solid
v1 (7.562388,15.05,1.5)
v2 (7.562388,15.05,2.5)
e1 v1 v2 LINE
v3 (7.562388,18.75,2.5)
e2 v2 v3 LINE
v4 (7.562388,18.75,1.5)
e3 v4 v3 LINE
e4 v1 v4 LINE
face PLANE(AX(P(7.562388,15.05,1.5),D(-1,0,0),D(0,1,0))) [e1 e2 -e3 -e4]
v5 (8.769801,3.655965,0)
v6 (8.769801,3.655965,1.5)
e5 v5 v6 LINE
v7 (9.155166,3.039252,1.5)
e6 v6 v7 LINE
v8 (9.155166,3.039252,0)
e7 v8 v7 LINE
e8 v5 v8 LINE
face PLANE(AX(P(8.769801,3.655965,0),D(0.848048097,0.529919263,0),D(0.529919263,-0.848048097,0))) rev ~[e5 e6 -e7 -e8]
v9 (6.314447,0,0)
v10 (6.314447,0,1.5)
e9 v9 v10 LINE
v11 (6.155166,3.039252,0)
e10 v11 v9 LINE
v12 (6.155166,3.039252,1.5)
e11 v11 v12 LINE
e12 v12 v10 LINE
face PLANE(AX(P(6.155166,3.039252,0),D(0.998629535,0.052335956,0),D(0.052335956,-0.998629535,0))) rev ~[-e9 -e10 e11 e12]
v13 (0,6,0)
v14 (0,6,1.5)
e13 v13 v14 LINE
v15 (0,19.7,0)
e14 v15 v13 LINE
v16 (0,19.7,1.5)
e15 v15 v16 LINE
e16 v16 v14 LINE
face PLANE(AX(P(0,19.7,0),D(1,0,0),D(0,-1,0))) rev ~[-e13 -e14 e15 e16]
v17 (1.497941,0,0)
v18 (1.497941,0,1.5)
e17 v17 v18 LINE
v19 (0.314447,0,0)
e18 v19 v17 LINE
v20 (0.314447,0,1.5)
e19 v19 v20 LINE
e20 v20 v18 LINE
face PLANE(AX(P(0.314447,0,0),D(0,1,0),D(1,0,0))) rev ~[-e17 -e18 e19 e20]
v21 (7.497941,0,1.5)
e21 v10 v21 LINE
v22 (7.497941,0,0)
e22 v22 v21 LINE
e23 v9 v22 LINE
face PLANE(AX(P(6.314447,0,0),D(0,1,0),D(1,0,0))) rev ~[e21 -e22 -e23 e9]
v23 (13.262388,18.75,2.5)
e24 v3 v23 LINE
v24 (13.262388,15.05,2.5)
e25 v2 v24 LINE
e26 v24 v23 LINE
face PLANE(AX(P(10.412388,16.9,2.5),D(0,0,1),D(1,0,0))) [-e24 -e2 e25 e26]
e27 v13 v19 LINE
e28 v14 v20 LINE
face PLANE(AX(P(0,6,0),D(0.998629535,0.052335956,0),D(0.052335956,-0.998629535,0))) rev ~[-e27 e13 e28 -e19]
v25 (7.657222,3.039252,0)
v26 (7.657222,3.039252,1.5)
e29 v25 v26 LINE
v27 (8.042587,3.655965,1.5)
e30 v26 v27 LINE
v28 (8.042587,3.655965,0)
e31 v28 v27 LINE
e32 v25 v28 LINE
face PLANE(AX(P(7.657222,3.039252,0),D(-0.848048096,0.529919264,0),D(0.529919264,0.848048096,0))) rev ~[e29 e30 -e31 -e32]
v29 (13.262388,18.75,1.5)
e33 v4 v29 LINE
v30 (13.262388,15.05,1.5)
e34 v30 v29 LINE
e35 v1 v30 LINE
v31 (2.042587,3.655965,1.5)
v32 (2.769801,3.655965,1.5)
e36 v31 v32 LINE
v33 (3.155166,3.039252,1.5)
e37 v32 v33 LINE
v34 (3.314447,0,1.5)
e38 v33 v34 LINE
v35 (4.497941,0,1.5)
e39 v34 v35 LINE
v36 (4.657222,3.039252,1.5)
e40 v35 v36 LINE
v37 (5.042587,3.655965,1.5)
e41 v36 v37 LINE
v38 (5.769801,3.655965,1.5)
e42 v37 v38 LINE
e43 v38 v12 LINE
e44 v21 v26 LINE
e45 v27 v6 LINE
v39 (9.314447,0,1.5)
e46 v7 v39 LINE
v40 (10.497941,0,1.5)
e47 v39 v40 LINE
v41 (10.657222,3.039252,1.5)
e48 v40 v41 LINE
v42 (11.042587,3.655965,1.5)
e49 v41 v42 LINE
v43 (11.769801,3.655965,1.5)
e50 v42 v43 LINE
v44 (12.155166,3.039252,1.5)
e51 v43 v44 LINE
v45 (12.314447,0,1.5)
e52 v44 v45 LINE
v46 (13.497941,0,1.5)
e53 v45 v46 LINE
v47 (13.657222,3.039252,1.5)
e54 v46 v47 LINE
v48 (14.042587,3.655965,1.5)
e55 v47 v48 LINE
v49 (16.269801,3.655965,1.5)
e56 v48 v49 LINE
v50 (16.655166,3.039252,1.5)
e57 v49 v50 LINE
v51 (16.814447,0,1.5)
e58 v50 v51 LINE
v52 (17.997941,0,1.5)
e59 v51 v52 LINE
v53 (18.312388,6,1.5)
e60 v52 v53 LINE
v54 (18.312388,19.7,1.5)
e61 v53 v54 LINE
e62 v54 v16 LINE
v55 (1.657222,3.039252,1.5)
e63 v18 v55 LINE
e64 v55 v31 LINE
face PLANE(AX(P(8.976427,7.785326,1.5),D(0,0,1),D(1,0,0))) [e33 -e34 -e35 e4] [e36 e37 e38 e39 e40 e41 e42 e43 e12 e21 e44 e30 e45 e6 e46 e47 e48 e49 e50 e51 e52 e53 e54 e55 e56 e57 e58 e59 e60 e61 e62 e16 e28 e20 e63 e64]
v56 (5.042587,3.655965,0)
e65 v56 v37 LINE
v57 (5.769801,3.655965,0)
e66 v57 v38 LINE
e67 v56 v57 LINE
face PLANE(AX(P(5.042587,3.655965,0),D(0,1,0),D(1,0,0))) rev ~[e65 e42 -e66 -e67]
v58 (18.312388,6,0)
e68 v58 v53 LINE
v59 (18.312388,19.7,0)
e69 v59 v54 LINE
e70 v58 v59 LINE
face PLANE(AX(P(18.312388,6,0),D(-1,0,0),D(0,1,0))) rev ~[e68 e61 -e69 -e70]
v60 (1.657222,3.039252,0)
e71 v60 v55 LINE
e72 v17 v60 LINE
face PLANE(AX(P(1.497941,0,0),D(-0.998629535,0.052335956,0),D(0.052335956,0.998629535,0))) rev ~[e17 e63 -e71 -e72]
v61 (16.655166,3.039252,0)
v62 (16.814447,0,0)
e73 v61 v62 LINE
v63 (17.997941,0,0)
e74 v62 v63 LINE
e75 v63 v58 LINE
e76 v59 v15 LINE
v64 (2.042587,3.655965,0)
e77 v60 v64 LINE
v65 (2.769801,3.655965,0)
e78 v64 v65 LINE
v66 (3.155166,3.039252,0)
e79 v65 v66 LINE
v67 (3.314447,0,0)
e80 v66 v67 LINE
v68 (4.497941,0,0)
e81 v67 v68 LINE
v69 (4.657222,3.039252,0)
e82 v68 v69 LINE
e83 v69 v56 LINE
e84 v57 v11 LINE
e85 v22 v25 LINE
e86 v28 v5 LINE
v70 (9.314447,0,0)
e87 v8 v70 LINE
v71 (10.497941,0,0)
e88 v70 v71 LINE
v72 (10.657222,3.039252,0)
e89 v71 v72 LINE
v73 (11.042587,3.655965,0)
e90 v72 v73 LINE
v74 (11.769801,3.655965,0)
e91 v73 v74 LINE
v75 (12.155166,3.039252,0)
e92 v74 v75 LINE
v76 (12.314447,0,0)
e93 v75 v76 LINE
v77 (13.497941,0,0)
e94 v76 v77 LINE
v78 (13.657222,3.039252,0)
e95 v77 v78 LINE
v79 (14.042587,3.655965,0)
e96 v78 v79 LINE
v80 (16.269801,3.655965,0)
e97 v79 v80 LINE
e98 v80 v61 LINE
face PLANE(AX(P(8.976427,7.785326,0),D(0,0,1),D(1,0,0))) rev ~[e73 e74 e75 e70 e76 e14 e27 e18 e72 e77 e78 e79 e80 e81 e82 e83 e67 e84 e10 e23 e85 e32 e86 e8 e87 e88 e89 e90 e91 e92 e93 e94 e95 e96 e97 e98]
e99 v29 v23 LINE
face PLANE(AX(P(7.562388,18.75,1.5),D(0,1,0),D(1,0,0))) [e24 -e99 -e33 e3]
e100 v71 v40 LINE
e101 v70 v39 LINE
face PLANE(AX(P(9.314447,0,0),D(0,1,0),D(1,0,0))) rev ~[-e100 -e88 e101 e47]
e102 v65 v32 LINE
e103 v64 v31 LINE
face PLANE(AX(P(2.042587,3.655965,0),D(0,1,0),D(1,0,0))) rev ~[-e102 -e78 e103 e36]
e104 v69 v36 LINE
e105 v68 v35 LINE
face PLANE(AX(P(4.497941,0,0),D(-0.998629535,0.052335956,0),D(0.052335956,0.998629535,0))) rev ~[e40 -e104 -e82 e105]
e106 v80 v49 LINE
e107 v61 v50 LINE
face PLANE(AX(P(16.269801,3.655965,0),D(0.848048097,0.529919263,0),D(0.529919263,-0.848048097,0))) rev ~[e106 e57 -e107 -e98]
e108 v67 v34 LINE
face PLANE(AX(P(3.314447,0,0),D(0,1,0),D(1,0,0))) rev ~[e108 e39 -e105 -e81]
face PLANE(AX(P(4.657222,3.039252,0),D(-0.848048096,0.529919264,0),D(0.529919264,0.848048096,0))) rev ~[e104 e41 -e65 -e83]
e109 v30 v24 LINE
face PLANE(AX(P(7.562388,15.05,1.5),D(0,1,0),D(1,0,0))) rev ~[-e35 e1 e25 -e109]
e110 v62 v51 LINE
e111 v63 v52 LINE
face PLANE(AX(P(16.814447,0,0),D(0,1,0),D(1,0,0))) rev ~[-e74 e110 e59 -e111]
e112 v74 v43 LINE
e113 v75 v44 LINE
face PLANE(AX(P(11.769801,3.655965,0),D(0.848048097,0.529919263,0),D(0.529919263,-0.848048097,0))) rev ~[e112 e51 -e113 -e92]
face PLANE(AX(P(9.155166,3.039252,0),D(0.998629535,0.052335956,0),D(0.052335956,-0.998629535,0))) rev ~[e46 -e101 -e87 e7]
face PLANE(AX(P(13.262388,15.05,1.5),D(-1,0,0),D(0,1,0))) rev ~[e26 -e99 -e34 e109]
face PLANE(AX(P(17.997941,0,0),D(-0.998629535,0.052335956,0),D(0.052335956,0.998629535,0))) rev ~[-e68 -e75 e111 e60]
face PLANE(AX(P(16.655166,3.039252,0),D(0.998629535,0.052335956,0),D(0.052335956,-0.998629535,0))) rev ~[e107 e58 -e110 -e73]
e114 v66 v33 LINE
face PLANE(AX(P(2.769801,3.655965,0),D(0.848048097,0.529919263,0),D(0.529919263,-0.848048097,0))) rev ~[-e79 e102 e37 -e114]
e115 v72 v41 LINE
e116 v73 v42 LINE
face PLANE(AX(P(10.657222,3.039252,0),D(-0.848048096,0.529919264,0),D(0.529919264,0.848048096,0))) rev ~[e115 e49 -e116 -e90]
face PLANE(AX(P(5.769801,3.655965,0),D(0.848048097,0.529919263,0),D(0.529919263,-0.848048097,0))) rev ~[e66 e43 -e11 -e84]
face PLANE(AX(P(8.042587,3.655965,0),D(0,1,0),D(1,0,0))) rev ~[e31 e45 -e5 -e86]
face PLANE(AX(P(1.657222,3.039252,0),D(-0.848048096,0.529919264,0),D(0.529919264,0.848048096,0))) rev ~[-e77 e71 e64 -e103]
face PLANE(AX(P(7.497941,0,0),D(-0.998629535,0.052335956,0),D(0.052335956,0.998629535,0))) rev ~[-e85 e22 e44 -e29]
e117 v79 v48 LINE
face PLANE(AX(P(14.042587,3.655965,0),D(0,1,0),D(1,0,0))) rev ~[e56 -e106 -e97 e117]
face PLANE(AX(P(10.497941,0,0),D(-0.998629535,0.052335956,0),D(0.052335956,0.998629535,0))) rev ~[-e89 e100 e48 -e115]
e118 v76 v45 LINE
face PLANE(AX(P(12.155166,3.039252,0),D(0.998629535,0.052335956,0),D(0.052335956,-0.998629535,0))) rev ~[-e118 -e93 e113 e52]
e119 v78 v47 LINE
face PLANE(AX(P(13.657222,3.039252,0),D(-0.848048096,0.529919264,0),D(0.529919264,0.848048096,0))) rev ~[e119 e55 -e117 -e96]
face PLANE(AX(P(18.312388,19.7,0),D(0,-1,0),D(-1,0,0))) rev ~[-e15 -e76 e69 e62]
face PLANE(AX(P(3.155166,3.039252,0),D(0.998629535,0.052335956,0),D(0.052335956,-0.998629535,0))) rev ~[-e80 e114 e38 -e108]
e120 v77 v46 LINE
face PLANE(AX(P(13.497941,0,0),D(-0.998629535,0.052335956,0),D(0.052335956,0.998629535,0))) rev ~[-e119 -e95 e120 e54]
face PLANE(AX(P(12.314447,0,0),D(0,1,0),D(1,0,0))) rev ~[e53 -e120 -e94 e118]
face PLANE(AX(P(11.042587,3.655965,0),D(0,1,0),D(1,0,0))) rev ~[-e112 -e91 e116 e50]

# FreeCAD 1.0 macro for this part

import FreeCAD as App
import Part
import Sketcher
Q = App.Units.Quantity

doc = App.newDocument("Part")
params = doc.addObject("Spreadsheet::Sheet", "Params")
for row, (alias, value) in enumerate([
    ("sketch1_height", "13.7 mm"),
    ("pad1_length", "1.5 mm"),
    ("sketch2_width", "5.7 mm"),
    ("sketch2_height", "3.7 mm"),
    ("pad2_length", "1 mm"),
], start=1):
    params.set(f"A{row}", alias)
    params.set(f"B{row}", "=" + value)
    params.setAlias(f"B{row}", alias)

body = doc.addObject("PartDesign::Body", "Body")

sketch1 = body.newObject("Sketcher::SketchObject", "Sketch")
sketch1.AttachmentSupport = (doc.getObject("XY_Plane"), [""])
sketch1.MapMode = "FlatFace"
sketch1.addGeometry([
    Part.LineSegment(App.Vector(0, 6, 0), App.Vector(0.314447, 0, 0)),
    Part.LineSegment(App.Vector(0.314447, 0, 0), App.Vector(1.497941, 0, 0)),
    Part.LineSegment(App.Vector(1.497941, 0, 0), App.Vector(1.657222, 3.039252, 0)),
    Part.LineSegment(App.Vector(1.657222, 3.039252, 0), App.Vector(2.042587, 3.655965, 0)),
    Part.LineSegment(App.Vector(2.042587, 3.655965, 0), App.Vector(2.769801, 3.655965, 0)),
    Part.LineSegment(App.Vector(2.769801, 3.655965, 0), App.Vector(3.155166, 3.039252, 0)),
    Part.LineSegment(App.Vector(3.155166, 3.039252, 0), App.Vector(3.314447, 0, 0)),
    Part.LineSegment(App.Vector(3.314447, 0, 0), App.Vector(4.497941, 0, 0)),
    Part.LineSegment(App.Vector(4.497941, 0, 0), App.Vector(4.657222, 3.039252, 0)),
    Part.LineSegment(App.Vector(4.657222, 3.039252, 0), App.Vector(5.042587, 3.655965, 0)),
    Part.LineSegment(App.Vector(5.042587, 3.655965, 0), App.Vector(5.769801, 3.655965, 0)),
    Part.LineSegment(App.Vector(5.769801, 3.655965, 0), App.Vector(6.155166, 3.039252, 0)),
    Part.LineSegment(App.Vector(6.155166, 3.039252, 0), App.Vector(6.314447, 0, 0)),
    Part.LineSegment(App.Vector(6.314447, 0, 0), App.Vector(7.497941, 0, 0)),
    Part.LineSegment(App.Vector(7.497941, 0, 0), App.Vector(7.657222, 3.039252, 0)),
    Part.LineSegment(App.Vector(7.657222, 3.039252, 0), App.Vector(8.042587, 3.655965, 0)),
    Part.LineSegment(App.Vector(8.042587, 3.655965, 0), App.Vector(8.769801, 3.655965, 0)),
    Part.LineSegment(App.Vector(8.769801, 3.655965, 0), App.Vector(9.155166, 3.039252, 0)),
    Part.LineSegment(App.Vector(9.155166, 3.039252, 0), App.Vector(9.314447, 0, 0)),
    Part.LineSegment(App.Vector(9.314447, 0, 0), App.Vector(10.497941, 0, 0)),
    Part.LineSegment(App.Vector(10.497941, 0, 0), App.Vector(10.657222, 3.039252, 0)),
    Part.LineSegment(App.Vector(10.657222, 3.039252, 0), App.Vector(11.042587, 3.655965, 0)),
    Part.LineSegment(App.Vector(11.042587, 3.655965, 0), App.Vector(11.769801, 3.655965, 0)),
    Part.LineSegment(App.Vector(11.769801, 3.655965, 0), App.Vector(12.155166, 3.039252, 0)),
    Part.LineSegment(App.Vector(12.155166, 3.039252, 0), App.Vector(12.314447, 0, 0)),
    Part.LineSegment(App.Vector(12.314447, 0, 0), App.Vector(13.497941, 0, 0)),
    Part.LineSegment(App.Vector(13.497941, 0, 0), App.Vector(13.657222, 3.039252, 0)),
    Part.LineSegment(App.Vector(13.657222, 3.039252, 0), App.Vector(14.042587, 3.655965, 0)),
    Part.LineSegment(App.Vector(14.042587, 3.655965, 0), App.Vector(16.269801, 3.655965, 0)),
    Part.LineSegment(App.Vector(16.269801, 3.655965, 0), App.Vector(16.655166, 3.039252, 0)),
    Part.LineSegment(App.Vector(16.655166, 3.039252, 0), App.Vector(16.814447, 0, 0)),
    Part.LineSegment(App.Vector(16.814447, 0, 0), App.Vector(17.997941, 0, 0)),
    Part.LineSegment(App.Vector(17.997941, 0, 0), App.Vector(18.312388, 6, 0)),
    Part.LineSegment(App.Vector(18.312388, 6, 0), App.Vector(18.312388, 19.7, 0)),
    Part.LineSegment(App.Vector(18.312388, 19.7, 0), App.Vector(0, 19.7, 0)),
    Part.LineSegment(App.Vector(0, 19.7, 0), App.Vector(0, 6, 0)),
], False)
sketch1.addConstraint([
    Sketcher.Constraint("Coincident", 0, 2, 1, 1),
    Sketcher.Constraint("Coincident", 1, 2, 2, 1),
    Sketcher.Constraint("Coincident", 2, 2, 3, 1),
    Sketcher.Constraint("Coincident", 3, 2, 4, 1),
    Sketcher.Constraint("Coincident", 4, 2, 5, 1),
    Sketcher.Constraint("Coincident", 5, 2, 6, 1),
    Sketcher.Constraint("Coincident", 6, 2, 7, 1),
    Sketcher.Constraint("Coincident", 7, 2, 8, 1),
    Sketcher.Constraint("Coincident", 8, 2, 9, 1),
    Sketcher.Constraint("Coincident", 9, 2, 10, 1),
    Sketcher.Constraint("Coincident", 10, 2, 11, 1),
    Sketcher.Constraint("Coincident", 11, 2, 12, 1),
    Sketcher.Constraint("Coincident", 12, 2, 13, 1),
    Sketcher.Constraint("Coincident", 13, 2, 14, 1),
    Sketcher.Constraint("Coincident", 14, 2, 15, 1),
    Sketcher.Constraint("Coincident", 15, 2, 16, 1),
    Sketcher.Constraint("Coincident", 16, 2, 17, 1),
    Sketcher.Constraint("Coincident", 17, 2, 18, 1),
    Sketcher.Constraint("Coincident", 18, 2, 19, 1),
    Sketcher.Constraint("Coincident", 19, 2, 20, 1),
    Sketcher.Constraint("Coincident", 20, 2, 21, 1),
    Sketcher.Constraint("Coincident", 21, 2, 22, 1),
    Sketcher.Constraint("Coincident", 22, 2, 23, 1),
    Sketcher.Constraint("Coincident", 23, 2, 24, 1),
    Sketcher.Constraint("Coincident", 24, 2, 25, 1),
    Sketcher.Constraint("Coincident", 25, 2, 26, 1),
    Sketcher.Constraint("Coincident", 26, 2, 27, 1),
    Sketcher.Constraint("Coincident", 27, 2, 28, 1),
    Sketcher.Constraint("Coincident", 28, 2, 29, 1),
    Sketcher.Constraint("Coincident", 29, 2, 30, 1),
    Sketcher.Constraint("Coincident", 30, 2, 31, 1),
    Sketcher.Constraint("Coincident", 31, 2, 32, 1),
    Sketcher.Constraint("Coincident", 32, 2, 33, 1),
    Sketcher.Constraint("Coincident", 33, 2, 34, 1),
    Sketcher.Constraint("Coincident", 34, 2, 35, 1),
    Sketcher.Constraint("Coincident", 35, 2, 0, 1),
    Sketcher.Constraint("Horizontal", 1),
    Sketcher.Constraint("Horizontal", 4),
    Sketcher.Constraint("Horizontal", 7),
    Sketcher.Constraint("Horizontal", 10),
    Sketcher.Constraint("Horizontal", 13),
    Sketcher.Constraint("Horizontal", 16),
    Sketcher.Constraint("Horizontal", 19),
    Sketcher.Constraint("Horizontal", 22),
    Sketcher.Constraint("Horizontal", 25),
    Sketcher.Constraint("Horizontal", 28),
    Sketcher.Constraint("Horizontal", 31),
    Sketcher.Constraint("Vertical", 33),
    Sketcher.Constraint("Horizontal", 34),
    Sketcher.Constraint("Vertical", 35),
    Sketcher.Constraint("PointOnObject", 0, 2, -1),
    Sketcher.Constraint("PointOnObject", 6, 2, -1),
    Sketcher.Constraint("PointOnObject", 12, 2, -1),
    Sketcher.Constraint("PointOnObject", 18, 2, -1),
    Sketcher.Constraint("PointOnObject", 24, 2, -1),
    Sketcher.Constraint("PointOnObject", 30, 2, -1),
    Sketcher.Constraint("PointOnObject", 34, 2, -2),
    Sketcher.Constraint("Parallel", 0, 6),
    Sketcher.Constraint("Parallel", 2, 8),
    Sketcher.Constraint("Parallel", 3, 9),
    Sketcher.Constraint("Parallel", 5, 11),
    Sketcher.Constraint("Parallel", 6, 12),
    Sketcher.Constraint("Parallel", 8, 14),
    Sketcher.Constraint("Parallel", 9, 15),
    Sketcher.Constraint("Parallel", 11, 17),
    Sketcher.Constraint("Parallel", 12, 18),
    Sketcher.Constraint("Parallel", 14, 20),
    Sketcher.Constraint("Parallel", 15, 21),
    Sketcher.Constraint("Parallel", 17, 23),
    Sketcher.Constraint("Parallel", 18, 24),
    Sketcher.Constraint("Parallel", 20, 26),
    Sketcher.Constraint("Parallel", 21, 27),
    Sketcher.Constraint("Parallel", 23, 29),
    Sketcher.Constraint("Parallel", 24, 30),
    Sketcher.Constraint("Parallel", 26, 32),
    Sketcher.Constraint("Horizontal", 2, 2, 5, 2),
    Sketcher.Constraint("Horizontal", 5, 2, 8, 2),
    Sketcher.Constraint("Horizontal", 4, 2, 9, 2),
    Sketcher.Constraint("Horizontal", 8, 2, 11, 2),
    Sketcher.Constraint("Horizontal", 11, 2, 14, 2),
    Sketcher.Constraint("Horizontal", 10, 2, 15, 2),
    Sketcher.Constraint("Horizontal", 14, 2, 17, 2),
    Sketcher.Constraint("Horizontal", 17, 2, 20, 2),
    Sketcher.Constraint("Horizontal", 16, 2, 21, 2),
    Sketcher.Constraint("Horizontal", 20, 2, 23, 2),
    Sketcher.Constraint("Horizontal", 23, 2, 26, 2),
    Sketcher.Constraint("Horizontal", 22, 2, 27, 2),
    Sketcher.Constraint("Horizontal", 26, 2, 29, 2),
    Sketcher.Constraint("Horizontal", 32, 2, 35, 2),
    Sketcher.Constraint("Equal", 1, 7),
    Sketcher.Constraint("Equal", 4, 10),
    Sketcher.Constraint("Equal", 7, 13),
    Sketcher.Constraint("Equal", 10, 16),
    Sketcher.Constraint("Equal", 13, 19),
    Sketcher.Constraint("Equal", 16, 22),
    Sketcher.Constraint("Equal", 19, 25),
    Sketcher.Constraint("Equal", 25, 31),
    Sketcher.Constraint("Equal", 3, 5),
    Sketcher.Constraint("Equal", 2, 6),
    Sketcher.Constraint("Angle", 0, Q("-87 deg")),
    Sketcher.Constraint("Angle", 3, Q("58 deg")),
    Sketcher.Constraint("DistanceY", 33, 1, 33, 2, 13.7),
    Sketcher.Constraint("DistanceY", -1, 1, 32, 2, 6.0),
    Sketcher.Constraint("DistanceX", 0, 2, 6, 2, 3.0),
    Sketcher.Constraint("DistanceX", 22, 2, 28, 2, 4.5),
    Sketcher.Constraint("DistanceX", 34, 2, 34, 1, 18.312388),
    Sketcher.Constraint("DistanceX", -1, 1, 4, 2, 2.769801),
    Sketcher.Constraint("DistanceX", -1, 1, 2, 2, 1.657222),
])
sketch1.setExpression("Constraints[101]", "Params.sketch1_height")
pad1 = body.newObject("PartDesign::Pad", "Pad")
pad1.Profile = sketch1
pad1.setExpression("Length", "Params.pad1_length")

sketch2 = body.newObject("Sketcher::SketchObject", "Sketch001")
sketch2.AttachmentSupport = (doc.getObject("XY_Plane"), [""])
sketch2.MapMode = "FlatFace"
sketch2.AttachmentOffset = App.Placement(App.Vector(0, 0, 1.5), App.Rotation())
sketch2.addGeometry([
    Part.LineSegment(App.Vector(7.562388, 18.75, 0), App.Vector(7.562388, 15.05, 0)),
    Part.LineSegment(App.Vector(7.562388, 15.05, 0), App.Vector(13.262388, 15.05, 0)),
    Part.LineSegment(App.Vector(13.262388, 15.05, 0), App.Vector(13.262388, 18.75, 0)),
    Part.LineSegment(App.Vector(13.262388, 18.75, 0), App.Vector(7.562388, 18.75, 0)),
], False)
sketch2.addConstraint([
    Sketcher.Constraint("Coincident", 0, 2, 1, 1),
    Sketcher.Constraint("Coincident", 1, 2, 2, 1),
    Sketcher.Constraint("Coincident", 2, 2, 3, 1),
    Sketcher.Constraint("Coincident", 3, 2, 0, 1),
    Sketcher.Constraint("Vertical", 0),
    Sketcher.Constraint("Horizontal", 1),
    Sketcher.Constraint("Vertical", 2),
    Sketcher.Constraint("Horizontal", 3),
    Sketcher.Constraint("DistanceX", 1, 1, 1, 2, 5.7),
    Sketcher.Constraint("DistanceY", 0, 2, 0, 1, 3.7),
    Sketcher.Constraint("DistanceY", -1, 1, 0, 2, 15.05),
    Sketcher.Constraint("DistanceX", -1, 1, 0, 2, 7.562388),
])
sketch2.setExpression("Constraints[8]", "Params.sketch2_width")
sketch2.setExpression("Constraints[9]", "Params.sketch2_height")
pad2 = body.newObject("PartDesign::Pad", "Pad001")
pad2.Profile = sketch2
pad2.setExpression("Length", "Params.pad2_length")

doc.recompute()
